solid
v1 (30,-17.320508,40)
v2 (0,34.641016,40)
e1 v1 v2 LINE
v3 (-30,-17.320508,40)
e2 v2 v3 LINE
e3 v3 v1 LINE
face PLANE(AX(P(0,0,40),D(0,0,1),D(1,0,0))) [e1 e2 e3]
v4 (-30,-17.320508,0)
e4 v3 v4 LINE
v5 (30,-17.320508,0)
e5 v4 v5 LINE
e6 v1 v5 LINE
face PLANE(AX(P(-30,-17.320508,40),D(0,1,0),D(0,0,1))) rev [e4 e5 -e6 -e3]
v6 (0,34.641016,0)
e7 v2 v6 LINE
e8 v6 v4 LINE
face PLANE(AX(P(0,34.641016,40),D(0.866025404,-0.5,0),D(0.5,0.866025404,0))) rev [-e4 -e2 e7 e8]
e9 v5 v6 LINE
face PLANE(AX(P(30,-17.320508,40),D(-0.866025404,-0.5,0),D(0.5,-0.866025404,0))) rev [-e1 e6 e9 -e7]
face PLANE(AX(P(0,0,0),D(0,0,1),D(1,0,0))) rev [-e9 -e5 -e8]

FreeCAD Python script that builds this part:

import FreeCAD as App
import Part
import Sketcher
Q = App.Units.Quantity

doc = App.newDocument("Part")
body = doc.addObject("PartDesign::Body", "Body")

# Sketch on XY plane
sketch1 = body.newObject("Sketcher::SketchObject", "Sketch")
sketch1.AttachmentSupport = (doc.getObject("XY_Plane"), [""])
sketch1.MapMode = "FlatFace"
sketch1.addGeometry(Part.LineSegment(App.Vector(0, 35, 0), App.Vector(-30, -17, 0)), False)
sketch1.addGeometry(Part.LineSegment(App.Vector(-30, -17, 0), App.Vector(30, -17, 0)), False)
sketch1.addGeometry(Part.LineSegment(App.Vector(30, -17, 0), App.Vector(0, 35, 0)), False)
sketch1.addConstraint(Sketcher.Constraint("Coincident", 0, 2, 1, 1))
sketch1.addConstraint(Sketcher.Constraint("Coincident", 1, 2, 2, 1))
sketch1.addConstraint(Sketcher.Constraint("Coincident", 2, 2, 0, 1))
sketch1.addConstraint(Sketcher.Constraint("Horizontal", 1))
sketch1.addConstraint(Sketcher.Constraint("PointOnObject", 2, 2, -2))
sketch1.addConstraint(Sketcher.Constraint("Equal", 0, 2))
sketch1.addConstraint(Sketcher.Constraint("DistanceX", 1, 1, 1, 2, Q("60 mm")))
sketch1.addConstraint(Sketcher.Constraint("Angle", 0, Q("-120 deg")))
sketch1.addConstraint(Sketcher.Constraint("DistanceY", 0, 2, -1, 1, Q("17.320508 mm")))
pad1 = body.newObject("PartDesign::Pad", "Pad")
pad1.Profile = sketch1
pad1.Length = 40

doc.recompute()
